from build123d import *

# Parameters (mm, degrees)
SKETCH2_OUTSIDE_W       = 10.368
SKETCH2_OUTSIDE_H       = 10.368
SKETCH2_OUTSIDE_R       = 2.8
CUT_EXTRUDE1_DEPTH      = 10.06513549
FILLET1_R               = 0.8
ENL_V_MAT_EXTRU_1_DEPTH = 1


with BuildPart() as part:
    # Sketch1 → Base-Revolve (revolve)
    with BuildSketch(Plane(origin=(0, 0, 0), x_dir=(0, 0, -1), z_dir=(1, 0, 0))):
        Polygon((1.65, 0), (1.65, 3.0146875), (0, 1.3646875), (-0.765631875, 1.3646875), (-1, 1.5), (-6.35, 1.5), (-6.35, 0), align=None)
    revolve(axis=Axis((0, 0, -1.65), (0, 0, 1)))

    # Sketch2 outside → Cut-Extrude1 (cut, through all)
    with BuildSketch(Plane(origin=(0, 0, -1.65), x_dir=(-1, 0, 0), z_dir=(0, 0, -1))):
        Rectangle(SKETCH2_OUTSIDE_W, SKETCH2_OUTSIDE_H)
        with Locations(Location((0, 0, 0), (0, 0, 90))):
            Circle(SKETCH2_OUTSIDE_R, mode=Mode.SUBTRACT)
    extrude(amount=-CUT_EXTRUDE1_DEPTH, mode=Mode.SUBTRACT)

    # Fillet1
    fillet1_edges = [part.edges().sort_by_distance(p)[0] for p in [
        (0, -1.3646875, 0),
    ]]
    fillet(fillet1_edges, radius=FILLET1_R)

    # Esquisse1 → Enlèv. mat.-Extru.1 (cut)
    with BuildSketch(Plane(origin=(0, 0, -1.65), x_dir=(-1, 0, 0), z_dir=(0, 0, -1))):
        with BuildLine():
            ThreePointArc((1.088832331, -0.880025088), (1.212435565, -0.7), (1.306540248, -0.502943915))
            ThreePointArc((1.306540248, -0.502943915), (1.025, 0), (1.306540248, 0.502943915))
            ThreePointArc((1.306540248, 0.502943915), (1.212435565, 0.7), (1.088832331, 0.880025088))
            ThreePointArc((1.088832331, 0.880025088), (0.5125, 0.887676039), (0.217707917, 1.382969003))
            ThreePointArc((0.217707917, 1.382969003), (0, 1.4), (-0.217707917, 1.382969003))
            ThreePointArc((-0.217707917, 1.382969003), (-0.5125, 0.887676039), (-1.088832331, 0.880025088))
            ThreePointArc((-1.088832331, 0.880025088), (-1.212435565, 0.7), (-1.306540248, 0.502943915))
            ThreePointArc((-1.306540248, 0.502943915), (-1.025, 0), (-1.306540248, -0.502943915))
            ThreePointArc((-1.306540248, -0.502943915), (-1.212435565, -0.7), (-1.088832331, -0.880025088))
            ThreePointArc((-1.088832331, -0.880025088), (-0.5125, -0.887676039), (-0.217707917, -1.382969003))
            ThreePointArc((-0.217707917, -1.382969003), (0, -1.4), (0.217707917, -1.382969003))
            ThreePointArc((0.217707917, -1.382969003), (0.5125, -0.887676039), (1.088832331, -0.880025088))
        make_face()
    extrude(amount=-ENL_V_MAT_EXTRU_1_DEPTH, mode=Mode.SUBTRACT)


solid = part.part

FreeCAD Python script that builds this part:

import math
import FreeCAD as App
import Part
import Sketcher

V = App.Vector
Q = App.Units.Quantity


def edges_at(feature, points):
    """Names of the edges that pass closest to the given points."""
    edges = feature.Shape.Edges
    near = lambda p: min(range(len(edges)), key=lambda i: edges[i].distToShape(Part.Vertex(*p))[0])
    return sorted({f"Edge{near(p) + 1}" for p in points})

doc = App.newDocument("Part")
body = doc.addObject("PartDesign::Body", "Body")

# Sketch on YZ plane
sketch1 = doc.addObject("Sketcher::SketchObject", "Sketch")
body.addObject(sketch1)
sketch1.AttachmentSupport = (doc.YZ_Plane, [""])
sketch1.MapMode = "FlatFace"
sketch1.addGeometry([
    Part.LineSegment(V(0, -1.65, 0), V(3.014687, -1.65, 0)),  # 0
    Part.LineSegment(V(3.014687, -1.65, 0), V(1.364688, 0, 0)),  # 1
    Part.LineSegment(V(1.364688, 0, 0), V(1.364688, 0.765632, 0)),  # 2
    Part.LineSegment(V(1.364688, 0.765632, 0), V(1.5, 1, 0)),  # 3
    Part.LineSegment(V(1.5, 1, 0), V(1.5, 6.35, 0)),  # 4
    Part.LineSegment(V(1.5, 6.35, 0), V(0, 6.35, 0)),  # 5
    Part.LineSegment(V(0, 6.35, 0), V(0, -1.65, 0)),  # 6
], False)
sketch1.addConstraint([
    Sketcher.Constraint("Coincident", 0, 2, 1, 1),
    Sketcher.Constraint("Coincident", 1, 2, 2, 1),
    Sketcher.Constraint("Coincident", 2, 2, 3, 1),
    Sketcher.Constraint("Coincident", 3, 2, 4, 1),
    Sketcher.Constraint("Coincident", 4, 2, 5, 1),
    Sketcher.Constraint("Coincident", 5, 2, 6, 1),
    Sketcher.Constraint("Coincident", 6, 2, 0, 1),
    Sketcher.Constraint("Horizontal", 0),
    Sketcher.Constraint("Vertical", 2),
    Sketcher.Constraint("Vertical", 4),
    Sketcher.Constraint("Horizontal", 5),
    Sketcher.Constraint("Vertical", 6),
    Sketcher.Constraint("PointOnObject", 1, 2, -1),
    Sketcher.Constraint("PointOnObject", 5, 2, -2),
    Sketcher.Constraint("DistanceY", 6, 2, 6, 1, 8.0),
    Sketcher.Constraint("Angle", 1, Q("135 deg")),
    Sketcher.Constraint("Angle", 3, Q("60 deg")),
    Sketcher.Constraint("DistanceX", 5, 2, 5, 1, 1.5),
    Sketcher.Constraint("DistanceY", -1, 1, 3, 2, 1.0),
    Sketcher.Constraint("DistanceY", 4, 1, 4, 2, 5.35),
    Sketcher.Constraint("DistanceY", 2, 1, 2, 2, 0.765632),
])
revolution = doc.addObject("PartDesign::Revolution", "Revolution")
body.addObject(revolution)
revolution.Profile = sketch1
revolution.ReferenceAxis = (sketch1, ["V_Axis"])
revolution.Angle = 360

# Sketch on XY plane
sketch2 = doc.addObject("Sketcher::SketchObject", "Sketch001")
body.addObject(sketch2)
sketch2.AttachmentSupport = (doc.XY_Plane, [""])
sketch2.MapMode = "FlatFace"
sketch2.AttachmentOffset = App.Placement(V(0, 0, -1.65), App.Rotation())
sketch2.addGeometry([
    Part.LineSegment(V(5.184, 5.184, 0), V(5.184, -5.184, 0)),  # 0
    Part.LineSegment(V(5.184, -5.184, 0), V(-5.184, -5.184, 0)),  # 1
    Part.LineSegment(V(-5.184, -5.184, 0), V(-5.184, 5.184, 0)),  # 2
    Part.LineSegment(V(-5.184, 5.184, 0), V(5.184, 5.184, 0)),  # 3
    Part.Circle(V(0, 0, 0), V(0, 0, 1), 2.8),  # 4
], False)
sketch2.addConstraint([
    Sketcher.Constraint("Coincident", 0, 2, 1, 1),
    Sketcher.Constraint("Coincident", 1, 2, 2, 1),
    Sketcher.Constraint("Coincident", 2, 2, 3, 1),
    Sketcher.Constraint("Coincident", 3, 2, 0, 1),
    Sketcher.Constraint("Vertical", 0),
    Sketcher.Constraint("Horizontal", 1),
    Sketcher.Constraint("Vertical", 2),
    Sketcher.Constraint("Horizontal", 3),
    Sketcher.Constraint("Coincident", 4, 3, -1, 1),
    Sketcher.Constraint("Symmetric", 0, 2, 2, 2, -1, 1),
    Sketcher.Constraint("Equal", 3, 0),
    Sketcher.Constraint("Diameter", 4, 5.6),
    Sketcher.Constraint("DistanceX", 1, 2, 1, 1, 10.368),
])
pocket1 = doc.addObject("PartDesign::Pocket", "Pocket")
body.addObject(pocket1)
pocket1.Profile = sketch2
pocket1.Type = "ThroughAll"
pocket1.Reversed = True
doc.recompute()

fillet = doc.addObject("PartDesign::Fillet", "Fillet")
body.addObject(fillet)
fillet.Base = (pocket1, edges_at(pocket1, [(0, -1.365, 0)]))
fillet.Radius = 0.8

# Sketch on XY plane
sketch3 = doc.addObject("Sketcher::SketchObject", "Sketch002")
body.addObject(sketch3)
sketch3.AttachmentSupport = (doc.XY_Plane, [""])
sketch3.MapMode = "FlatFace"
sketch3.AttachmentOffset = App.Placement(V(0, 0, -1.65), App.Rotation())
sketch3.addGeometry([
    Part.ArcOfCircle(Part.Circle(V(0, 0, 0), V(0, 0, 1), 1.4), math.radians(-158.946123), math.radians(-141.053877)),  # 0
    Part.ArcOfCircle(Part.Circle(V(-1.615, 0, 0), V(0, 0, 1), 0.59), math.radians(-58.478859), math.radians(58.478859)),  # 1
    Part.ArcOfCircle(Part.Circle(V(0, 0, 0), V(0, 0, 1), 1.4), math.radians(141.053877), math.radians(158.946123)),  # 2
    Part.ArcOfCircle(Part.Circle(V(-0.8075, 1.398631, 0), V(0, 0, 1), 0.59), math.radians(-118.478859), math.radians(-1.521141)),  # 3
    Part.ArcOfCircle(Part.Circle(V(0, 0, 0), V(0, 0, 1), 1.4), math.radians(81.053876), math.radians(98.946124)),  # 4
    Part.ArcOfCircle(Part.Circle(V(0.8075, 1.398631, 0), V(0, 0, 1), 0.59), math.radians(-178.478859), math.radians(-61.521141)),  # 5
    Part.ArcOfCircle(Part.Circle(V(0, 0, 0), V(0, 0, 1), 1.4), math.radians(21.053877), math.radians(38.946123)),  # 6
    Part.ArcOfCircle(Part.Circle(V(1.615, 0, 0), V(0, 0, 1), 0.59), math.radians(121.521141), math.radians(238.478859)),  # 7
    Part.ArcOfCircle(Part.Circle(V(0, 0, 0), V(0, 0, 1), 1.4), math.radians(-38.946123), math.radians(-21.053877)),  # 8
    Part.ArcOfCircle(Part.Circle(V(0.8075, -1.398631, 0), V(0, 0, 1), 0.59), math.radians(61.521141), math.radians(178.478859)),  # 9
    Part.ArcOfCircle(Part.Circle(V(0, 0, 0), V(0, 0, 1), 1.4), math.radians(-98.946124), math.radians(-81.053876)),  # 10
    Part.ArcOfCircle(Part.Circle(V(-0.8075, -1.398631, 0), V(0, 0, 1), 0.59), math.radians(1.521141), math.radians(118.478859)),  # 11
], False)
sketch3.addConstraint([
    Sketcher.Constraint("Coincident", 0, 1, 1, 1),
    Sketcher.Constraint("Coincident", 1, 2, 2, 2),
    Sketcher.Constraint("Coincident", 2, 1, 3, 1),
    Sketcher.Constraint("Coincident", 3, 2, 4, 2),
    Sketcher.Constraint("Coincident", 4, 1, 5, 1),
    Sketcher.Constraint("Coincident", 5, 2, 6, 2),
    Sketcher.Constraint("Coincident", 6, 1, 7, 1),
    Sketcher.Constraint("Coincident", 7, 2, 8, 2),
    Sketcher.Constraint("Coincident", 8, 1, 9, 1),
    Sketcher.Constraint("Coincident", 9, 2, 10, 2),
    Sketcher.Constraint("Coincident", 10, 1, 11, 1),
    Sketcher.Constraint("Coincident", 11, 2, 0, 2),
    Sketcher.Constraint("Coincident", 0, 3, -1, 1),
    Sketcher.Constraint("Coincident", 2, 3, -1, 1),
    Sketcher.Constraint("Coincident", 4, 3, -1, 1),
    Sketcher.Constraint("Coincident", 6, 3, -1, 1),
    Sketcher.Constraint("Coincident", 8, 3, -1, 1),
    Sketcher.Constraint("Coincident", 10, 3, -1, 1),
    Sketcher.Constraint("Equal", 0, 2),
    Sketcher.Constraint("Equal", 1, 3),
    Sketcher.Constraint("Equal", 2, 4),
    Sketcher.Constraint("Equal", 3, 5),
    Sketcher.Constraint("Equal", 4, 6),
    Sketcher.Constraint("Equal", 5, 7),
    Sketcher.Constraint("Equal", 6, 8),
    Sketcher.Constraint("Equal", 7, 9),
    Sketcher.Constraint("Equal", 8, 10),
    Sketcher.Constraint("Equal", 9, 11),
    Sketcher.Constraint("Symmetric", 1, 3, 7, 3, -1, 1),
    Sketcher.Constraint("Symmetric", 3, 3, 9, 3, -1, 1),
    Sketcher.Constraint("Symmetric", 5, 3, 11, 3, -1, 1),
    Sketcher.Constraint("Symmetric", 3, 3, 5, 3, -2),
    Sketcher.Constraint("PointOnObject", 1, 3, -1),
    Sketcher.Constraint("Radius", 0, 1.4),
    Sketcher.Constraint("Radius", 1, 0.59),
    Sketcher.Constraint("DistanceX", 1, 3, -1, 1, 1.615),
    Sketcher.Constraint("DistanceX", 3, 3, 5, 3, 1.615),
    Sketcher.Constraint("DistanceY", -1, 1, 3, 3, 1.398631),
])
pocket2 = doc.addObject("PartDesign::Pocket", "Pocket001")
body.addObject(pocket2)
pocket2.Profile = sketch3
pocket2.Length = 1
pocket2.Reversed = True

doc.recompute()
